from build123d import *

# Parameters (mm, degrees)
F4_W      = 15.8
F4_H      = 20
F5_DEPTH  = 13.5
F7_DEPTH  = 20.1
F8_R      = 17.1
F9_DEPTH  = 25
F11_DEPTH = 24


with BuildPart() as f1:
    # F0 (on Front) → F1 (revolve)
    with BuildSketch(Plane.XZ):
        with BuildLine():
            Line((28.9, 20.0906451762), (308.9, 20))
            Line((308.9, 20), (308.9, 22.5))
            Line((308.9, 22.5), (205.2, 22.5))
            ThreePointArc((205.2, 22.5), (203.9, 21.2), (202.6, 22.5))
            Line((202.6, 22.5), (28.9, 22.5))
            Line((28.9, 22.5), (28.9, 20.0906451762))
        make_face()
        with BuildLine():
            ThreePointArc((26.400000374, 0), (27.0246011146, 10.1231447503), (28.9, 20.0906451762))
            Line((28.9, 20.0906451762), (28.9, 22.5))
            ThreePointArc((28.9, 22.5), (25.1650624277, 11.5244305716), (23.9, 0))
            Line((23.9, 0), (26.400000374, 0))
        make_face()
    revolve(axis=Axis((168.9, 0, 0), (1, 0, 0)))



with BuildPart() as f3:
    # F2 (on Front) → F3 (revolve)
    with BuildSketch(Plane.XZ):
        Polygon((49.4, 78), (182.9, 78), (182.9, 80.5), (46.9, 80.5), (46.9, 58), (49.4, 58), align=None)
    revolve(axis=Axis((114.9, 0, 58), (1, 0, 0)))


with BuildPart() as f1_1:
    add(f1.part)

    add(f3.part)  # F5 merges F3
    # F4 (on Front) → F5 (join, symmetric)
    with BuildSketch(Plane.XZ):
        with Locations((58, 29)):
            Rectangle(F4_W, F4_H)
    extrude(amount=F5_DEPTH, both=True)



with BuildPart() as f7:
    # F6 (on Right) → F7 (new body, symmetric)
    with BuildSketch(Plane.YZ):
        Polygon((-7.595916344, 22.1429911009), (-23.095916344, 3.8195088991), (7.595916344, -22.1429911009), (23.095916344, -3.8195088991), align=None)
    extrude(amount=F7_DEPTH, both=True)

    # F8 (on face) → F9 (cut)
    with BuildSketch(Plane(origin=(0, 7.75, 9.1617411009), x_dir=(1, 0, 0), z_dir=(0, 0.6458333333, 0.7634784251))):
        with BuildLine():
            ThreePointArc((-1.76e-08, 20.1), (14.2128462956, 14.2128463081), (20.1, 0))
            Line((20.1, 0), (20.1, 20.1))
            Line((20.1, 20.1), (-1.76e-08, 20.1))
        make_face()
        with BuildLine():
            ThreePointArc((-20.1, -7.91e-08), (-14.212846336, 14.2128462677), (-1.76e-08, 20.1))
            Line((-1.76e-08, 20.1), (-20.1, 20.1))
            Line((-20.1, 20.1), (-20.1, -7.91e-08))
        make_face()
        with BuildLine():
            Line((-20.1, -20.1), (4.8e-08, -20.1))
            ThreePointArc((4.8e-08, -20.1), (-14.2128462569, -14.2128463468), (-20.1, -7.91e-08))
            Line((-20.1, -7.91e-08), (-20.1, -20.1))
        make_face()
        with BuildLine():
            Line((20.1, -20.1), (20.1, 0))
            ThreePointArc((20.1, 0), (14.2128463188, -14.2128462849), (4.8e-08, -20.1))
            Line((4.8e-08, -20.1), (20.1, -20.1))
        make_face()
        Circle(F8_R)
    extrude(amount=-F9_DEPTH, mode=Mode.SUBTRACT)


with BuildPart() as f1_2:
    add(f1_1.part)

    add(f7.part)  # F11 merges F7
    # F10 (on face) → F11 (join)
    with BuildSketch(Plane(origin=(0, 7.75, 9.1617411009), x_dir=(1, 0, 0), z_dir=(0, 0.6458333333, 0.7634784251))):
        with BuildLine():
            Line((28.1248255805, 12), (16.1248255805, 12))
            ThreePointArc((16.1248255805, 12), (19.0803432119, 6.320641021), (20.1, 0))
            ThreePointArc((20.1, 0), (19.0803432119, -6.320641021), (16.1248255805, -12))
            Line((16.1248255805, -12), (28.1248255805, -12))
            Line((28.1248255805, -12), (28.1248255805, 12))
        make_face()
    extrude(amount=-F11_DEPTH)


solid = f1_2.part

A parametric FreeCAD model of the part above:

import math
import FreeCAD as App
import Part
import Sketcher

V = App.Vector

doc = App.newDocument("Part")
body = doc.addObject("PartDesign::Body", "Body")

# Sketch on XZ plane
sketch1 = doc.addObject("Sketcher::SketchObject", "Sketch")
body.addObject(sketch1)
sketch1.AttachmentSupport = (doc.XZ_Plane, [""])
sketch1.MapMode = "FlatFace"
sketch1.addGeometry([
    Part.LineSegment(V(28.9, 20.1, 0), V(308.9, 20, 0)),  # 0
    Part.LineSegment(V(308.9, 20, 0), V(308.9, 22.5, 0)),  # 1
    Part.LineSegment(V(308.9, 22.5, 0), V(205.2, 22.5, 0)),  # 2
    Part.ArcOfCircle(Part.Circle(V(203.9, 22.5, 0), V(0, 0, 1), 1.3), math.radians(180), math.radians(360)),  # 3
    Part.LineSegment(V(202.6, 22.5, 0), V(28.9, 22.5, 0)),  # 4
    Part.ArcOfCircle(Part.Circle(V(77, 0, 0), V(0, 0, 1), 53.1), math.radians(155), math.radians(180)),  # 5
    Part.LineSegment(V(23.9, 0, 0), V(26.4, 0, 0)),  # 6
    Part.ArcOfCircle(Part.Circle(V(108, 0, 0), V(0, 0, 1), 81.6), math.radians(165.78), math.radians(180.03)),  # 7
], False)
sketch1.addConstraint([
    Sketcher.Constraint("Coincident", 0, 2, 1, 1),
    Sketcher.Constraint("Coincident", 1, 2, 2, 1),
    Sketcher.Constraint("Coincident", 2, 2, 3, 2),
    Sketcher.Constraint("Coincident", 3, 1, 4, 1),
    Sketcher.Constraint("Coincident", 4, 2, 5, 1),
    Sketcher.Constraint("Coincident", 5, 2, 6, 1),
    Sketcher.Constraint("Coincident", 6, 2, 7, 2),
    Sketcher.Constraint("Coincident", 7, 1, 0, 1),
    Sketcher.Constraint("Vertical", 1),
    Sketcher.Constraint("Horizontal", 2),
    Sketcher.Constraint("Horizontal", 4),
    Sketcher.Constraint("Horizontal", 6),
    Sketcher.Constraint("PointOnObject", 5, 3, -1),
    Sketcher.Constraint("PointOnObject", 5, 2, -1),
    Sketcher.Constraint("Horizontal", 3, 3, 1, 2),
    Sketcher.Constraint("Horizontal", 2, 2, 3, 1),
    Sketcher.Constraint("Vertical", 4, 2, 7, 1),
    Sketcher.Constraint("Equal", 6, 1),
    Sketcher.Constraint("Radius", 3, 1.3),
    Sketcher.Constraint("DistanceX", 2, 2, 2, 1, 103.7),
    Sketcher.Constraint("DistanceX", 4, 2, 4, 1, 173.7),
    Sketcher.Constraint("DistanceX", 6, 1, 6, 2, 2.5),
    Sketcher.Constraint("DistanceY", -1, 1, 0, 2, 20.0),
    Sketcher.Constraint("Radius", 5, 53.125),
    Sketcher.Constraint("DistanceX", -1, 1, 3, 3, 203.9),
    Sketcher.Constraint("Radius", 7, 81.612605),
    Sketcher.Constraint("DistanceY", -1, 1, 7, 3, 0.045323),
])
revolution = doc.addObject("PartDesign::Revolution", "Revolution")
body.addObject(revolution)
revolution.Profile = sketch1
revolution.ReferenceAxis = (sketch1, ["H_Axis"])
revolution.Angle = 360
body2 = doc.addObject("PartDesign::Body", "Body001")

# Sketch on XZ plane
sketch2 = doc.addObject("Sketcher::SketchObject", "Sketch001")
body2.addObject(sketch2)
sketch2.AttachmentSupport = (doc.getObject("XZ_Plane001"), [""])
sketch2.MapMode = "FlatFace"
sketch2.addGeometry([
    Part.LineSegment(V(49.4, 78, 0), V(182.9, 78, 0)),  # 0
    Part.LineSegment(V(182.9, 78, 0), V(182.9, 80.5, 0)),  # 1
    Part.LineSegment(V(182.9, 80.5, 0), V(46.9, 80.5, 0)),  # 2
    Part.LineSegment(V(46.9, 80.5, 0), V(46.9, 58, 0)),  # 3
    Part.LineSegment(V(46.9, 58, 0), V(49.4, 58, 0)),  # 4
    Part.LineSegment(V(49.4, 58, 0), V(49.4, 78, 0)),  # 5
], False)
sketch2.addGeometry(Part.LineSegment(V(46.9, 58, 0), V(182.9, 58, 0)), True)  # axis
sketch2.addConstraint([
    Sketcher.Constraint("Coincident", 0, 2, 1, 1),
    Sketcher.Constraint("Coincident", 1, 2, 2, 1),
    Sketcher.Constraint("Coincident", 2, 2, 3, 1),
    Sketcher.Constraint("Coincident", 3, 2, 4, 1),
    Sketcher.Constraint("Coincident", 4, 2, 5, 1),
    Sketcher.Constraint("Coincident", 5, 2, 0, 1),
    Sketcher.Constraint("Horizontal", 0),
    Sketcher.Constraint("Vertical", 1),
    Sketcher.Constraint("Horizontal", 2),
    Sketcher.Constraint("Vertical", 3),
    Sketcher.Constraint("Horizontal", 4),
    Sketcher.Constraint("Vertical", 5),
    Sketcher.Constraint("Horizontal", 6),
    Sketcher.Constraint("Coincident", 6, 1, 3, 2),
    Sketcher.Constraint("Vertical", 1, 2, 6, 2),
    Sketcher.Constraint("Equal", 4, 1),
    Sketcher.Constraint("DistanceX", 2, 2, 2, 1, 136.0),
    Sketcher.Constraint("DistanceY", 5, 1, 5, 2, 20.0),
    Sketcher.Constraint("DistanceX", 0, 1, 0, 2, 133.5),
    Sketcher.Constraint("DistanceY", -1, 1, 0, 2, 78.0),
    Sketcher.Constraint("DistanceX", -1, 1, 0, 2, 182.9),
])
revolution2 = doc.addObject("PartDesign::Revolution", "Revolution001")
body2.addObject(revolution2)
revolution2.Profile = sketch2
revolution2.ReferenceAxis = (sketch2, ["Axis0"])
revolution2.Angle = 360
body.AllowCompound = True
doc.recompute()

boolean = doc.addObject("PartDesign::Boolean", "Boolean")
body.addObject(boolean)
boolean.Type = "Fuse"
boolean.addObjects([body2])

# Sketch on XZ plane
sketch3 = doc.addObject("Sketcher::SketchObject", "Sketch002")
body.addObject(sketch3)
sketch3.AttachmentSupport = (doc.XZ_Plane, [""])
sketch3.MapMode = "FlatFace"
sketch3.addGeometry([
    Part.LineSegment(V(50, 39, 0), V(50, 19, 0)),
    Part.LineSegment(V(50, 19, 0), V(66, 19, 0)),
    Part.LineSegment(V(66, 19, 0), V(66, 39, 0)),
    Part.LineSegment(V(66, 39, 0), V(50, 39, 0)),
], False)
sketch3.addConstraint([
    Sketcher.Constraint("Coincident", 0, 2, 1, 1),
    Sketcher.Constraint("Coincident", 1, 2, 2, 1),
    Sketcher.Constraint("Coincident", 2, 2, 3, 1),
    Sketcher.Constraint("Coincident", 3, 2, 0, 1),
    Sketcher.Constraint("Vertical", 0),
    Sketcher.Constraint("Horizontal", 1),
    Sketcher.Constraint("Vertical", 2),
    Sketcher.Constraint("Horizontal", 3),
    Sketcher.Constraint("DistanceY", 0, 2, 0, 1, 20.0),
    Sketcher.Constraint("DistanceX", 1, 1, 1, 2, 15.8),
    Sketcher.Constraint("DistanceY", -1, 1, 0, 2, 19.0),
    Sketcher.Constraint("DistanceX", -1, 1, 0, 2, 50.1),
])
pad1 = doc.addObject("PartDesign::Pad", "Pad")
body.addObject(pad1)
pad1.Profile = sketch3
pad1.Length = 27
pad1.Midplane = True
body3 = doc.addObject("PartDesign::Body", "Body002")

# Sketch on YZ plane
sketch4 = doc.addObject("Sketcher::SketchObject", "Sketch003")
body3.addObject(sketch4)
sketch4.AttachmentSupport = (doc.getObject("YZ_Plane002"), [""])
sketch4.MapMode = "FlatFace"
sketch4.addGeometry([
    Part.LineSegment(V(-8, 22, 0), V(-23, 4, 0)),
    Part.LineSegment(V(-23, 4, 0), V(8, -22, 0)),
    Part.LineSegment(V(8, -22, 0), V(23, -4, 0)),
    Part.LineSegment(V(23, -4, 0), V(-8, 22, 0)),
], False)
sketch4.addConstraint([
    Sketcher.Constraint("Coincident", 0, 2, 1, 1),
    Sketcher.Constraint("Coincident", 1, 2, 2, 1),
    Sketcher.Constraint("Coincident", 2, 2, 3, 1),
    Sketcher.Constraint("Coincident", 3, 2, 0, 1),
    Sketcher.Constraint("Symmetric", 0, 2, 2, 2, -1, 1),
    Sketcher.Constraint("Symmetric", 1, 2, 3, 2, -1, 1),
    Sketcher.Constraint("Perpendicular", 0, 1),
    Sketcher.Constraint("Distance", 0, 24.0),
    Sketcher.Constraint("Distance", 1, 40.2),
    Sketcher.Constraint("DistanceX", 1, 2, 2, 2, 15.5),
])
pad2 = doc.addObject("PartDesign::Pad", "Pad001")
body3.addObject(pad2)
pad2.Profile = sketch4
pad2.Length = 40.2
pad2.Midplane = True

# Sketch on an angled plane
sketch5 = doc.addObject("Sketcher::SketchObject", "Sketch004")
body3.addObject(sketch5)
sketch5.Placement = App.Placement(V(0, 7.75, 9.161741), App.Rotation(V(1, 0, 0), V(0, 0.763478425, -0.645833333), V(0, 0.645833333, 0.763478425), "ZXY"))
sketch5.addGeometry([
    Part.ArcOfCircle(Part.Circle(V(0, 0, 0), V(0, 0, 1), 20), math.radians(0), math.radians(90)),  # 0
    Part.LineSegment(V(20, 0, 0), V(20, 20, 0)),  # 1
    Part.LineSegment(V(20, 20, 0), V(0, 20, 0)),  # 2
    Part.ArcOfCircle(Part.Circle(V(0, 0, 0), V(0, 0, 1), 20), math.radians(90), math.radians(180)),  # 3
    Part.LineSegment(V(0, 20, 0), V(-20, 20, 0)),  # 4
    Part.LineSegment(V(-20, 20, 0), V(-20, 0, 0)),  # 5
    Part.LineSegment(V(-20, -20, 0), V(0, -20, 0)),  # 6
    Part.ArcOfCircle(Part.Circle(V(0, 0, 0), V(0, 0, 1), 20), math.radians(-180), math.radians(-90)),  # 7
    Part.LineSegment(V(-20, 0, 0), V(-20, -20, 0)),  # 8
    Part.LineSegment(V(20, -20, 0), V(20, 0, 0)),  # 9
    Part.ArcOfCircle(Part.Circle(V(0, 0, 0), V(0, 0, 1), 20), math.radians(-90), math.radians(0)),  # 10
    Part.LineSegment(V(0, -20, 0), V(20, -20, 0)),  # 11
    Part.Circle(V(0, 0, 0), V(0, 0, 1), 17),  # 12
], False)
sketch5.addConstraint([
    Sketcher.Constraint("Tangent", 0, 1, 1, 1),
    Sketcher.Constraint("Coincident", 1, 2, 2, 1),
    Sketcher.Constraint("Tangent", 2, 2, 0, 2),
    Sketcher.Constraint("Tangent", 3, 1, 4, 1),
    Sketcher.Constraint("Coincident", 4, 2, 5, 1),
    Sketcher.Constraint("Tangent", 5, 2, 3, 2),
    Sketcher.Constraint("Tangent", 6, 2, 7, 2),
    Sketcher.Constraint("Tangent", 7, 1, 8, 1),
    Sketcher.Constraint("Coincident", 8, 2, 6, 1),
    Sketcher.Constraint("Tangent", 9, 2, 10, 2),
    Sketcher.Constraint("Tangent", 10, 1, 11, 1),
    Sketcher.Constraint("Coincident", 11, 2, 9, 1),
    Sketcher.Constraint("Vertical", 1),
    Sketcher.Constraint("Horizontal", 2),
    Sketcher.Constraint("Horizontal", 4),
    Sketcher.Constraint("Vertical", 5),
    Sketcher.Constraint("Horizontal", 6),
    Sketcher.Constraint("Vertical", 8),
    Sketcher.Constraint("Vertical", 9),
    Sketcher.Constraint("Horizontal", 11),
    Sketcher.Constraint("Coincident", 0, 3, -1, 1),
    Sketcher.Constraint("Coincident", 3, 3, -1, 1),
    Sketcher.Constraint("Coincident", 7, 3, -1, 1),
    Sketcher.Constraint("Coincident", 10, 3, -1, 1),
    Sketcher.Constraint("Coincident", 12, 3, -1, 1),
    Sketcher.Constraint("Equal", 0, 3),
    Sketcher.Constraint("Equal", 3, 7),
    Sketcher.Constraint("Equal", 7, 10),
    Sketcher.Constraint("Diameter", 12, 34.2),
    Sketcher.Constraint("Radius", 0, 20.1),
])
pocket1 = doc.addObject("PartDesign::Pocket", "Pocket")
body3.addObject(pocket1)
pocket1.Profile = sketch5
pocket1.Length = 25
body.AllowCompound = True
doc.recompute()

boolean2 = doc.addObject("PartDesign::Boolean", "Boolean001")
body.addObject(boolean2)
boolean2.Type = "Fuse"
boolean2.addObjects([body3])

# Sketch on an angled plane
sketch6 = doc.addObject("Sketcher::SketchObject", "Sketch005")
body.addObject(sketch6)
sketch6.Placement = App.Placement(V(0, 7.75, 9.161741), App.Rotation(V(1, 0, 0), V(0, 0.763478425, -0.645833333), V(0, 0.645833333, 0.763478425), "ZXY"))
sketch6.addGeometry([
    Part.LineSegment(V(28, 12, 0), V(16, 12, 0)),  # 0
    Part.ArcOfCircle(Part.Circle(V(0, 0, 0), V(0, 0, 1), 20), math.radians(0), math.radians(37)),  # 1
    Part.ArcOfCircle(Part.Circle(V(0, 0, 0), V(0, 0, 1), 20), math.radians(-37), math.radians(0)),  # 2
    Part.LineSegment(V(16, -12, 0), V(28, -12, 0)),  # 3
    Part.LineSegment(V(28, -12, 0), V(28, 12, 0)),  # 4
], False)
sketch6.addConstraint([
    Sketcher.Constraint("Coincident", 0, 2, 1, 2),
    Sketcher.Constraint("Tangent", 1, 1, 2, 2),
    Sketcher.Constraint("Coincident", 2, 1, 3, 1),
    Sketcher.Constraint("Coincident", 3, 2, 4, 1),
    Sketcher.Constraint("Coincident", 4, 2, 0, 1),
    Sketcher.Constraint("Horizontal", 0),
    Sketcher.Constraint("Horizontal", 3),
    Sketcher.Constraint("Vertical", 4),
    Sketcher.Constraint("Coincident", 1, 3, -1, 1),
    Sketcher.Constraint("Equal", 1, 2),
    Sketcher.Constraint("PointOnObject", 1, 1, -1),
    Sketcher.Constraint("Vertical", 0, 2, 2, 1),
    Sketcher.Constraint("Radius", 1, 20.1),
    Sketcher.Constraint("DistanceX", 0, 2, 0, 1, 12.0),
    Sketcher.Constraint("DistanceY", 4, 1, 4, 2, 24.0),
])
pad3 = doc.addObject("PartDesign::Pad", "Pad002")
body.addObject(pad3)
pad3.Profile = sketch6
pad3.Length = 24
pad3.Reversed = True

doc.recompute()
